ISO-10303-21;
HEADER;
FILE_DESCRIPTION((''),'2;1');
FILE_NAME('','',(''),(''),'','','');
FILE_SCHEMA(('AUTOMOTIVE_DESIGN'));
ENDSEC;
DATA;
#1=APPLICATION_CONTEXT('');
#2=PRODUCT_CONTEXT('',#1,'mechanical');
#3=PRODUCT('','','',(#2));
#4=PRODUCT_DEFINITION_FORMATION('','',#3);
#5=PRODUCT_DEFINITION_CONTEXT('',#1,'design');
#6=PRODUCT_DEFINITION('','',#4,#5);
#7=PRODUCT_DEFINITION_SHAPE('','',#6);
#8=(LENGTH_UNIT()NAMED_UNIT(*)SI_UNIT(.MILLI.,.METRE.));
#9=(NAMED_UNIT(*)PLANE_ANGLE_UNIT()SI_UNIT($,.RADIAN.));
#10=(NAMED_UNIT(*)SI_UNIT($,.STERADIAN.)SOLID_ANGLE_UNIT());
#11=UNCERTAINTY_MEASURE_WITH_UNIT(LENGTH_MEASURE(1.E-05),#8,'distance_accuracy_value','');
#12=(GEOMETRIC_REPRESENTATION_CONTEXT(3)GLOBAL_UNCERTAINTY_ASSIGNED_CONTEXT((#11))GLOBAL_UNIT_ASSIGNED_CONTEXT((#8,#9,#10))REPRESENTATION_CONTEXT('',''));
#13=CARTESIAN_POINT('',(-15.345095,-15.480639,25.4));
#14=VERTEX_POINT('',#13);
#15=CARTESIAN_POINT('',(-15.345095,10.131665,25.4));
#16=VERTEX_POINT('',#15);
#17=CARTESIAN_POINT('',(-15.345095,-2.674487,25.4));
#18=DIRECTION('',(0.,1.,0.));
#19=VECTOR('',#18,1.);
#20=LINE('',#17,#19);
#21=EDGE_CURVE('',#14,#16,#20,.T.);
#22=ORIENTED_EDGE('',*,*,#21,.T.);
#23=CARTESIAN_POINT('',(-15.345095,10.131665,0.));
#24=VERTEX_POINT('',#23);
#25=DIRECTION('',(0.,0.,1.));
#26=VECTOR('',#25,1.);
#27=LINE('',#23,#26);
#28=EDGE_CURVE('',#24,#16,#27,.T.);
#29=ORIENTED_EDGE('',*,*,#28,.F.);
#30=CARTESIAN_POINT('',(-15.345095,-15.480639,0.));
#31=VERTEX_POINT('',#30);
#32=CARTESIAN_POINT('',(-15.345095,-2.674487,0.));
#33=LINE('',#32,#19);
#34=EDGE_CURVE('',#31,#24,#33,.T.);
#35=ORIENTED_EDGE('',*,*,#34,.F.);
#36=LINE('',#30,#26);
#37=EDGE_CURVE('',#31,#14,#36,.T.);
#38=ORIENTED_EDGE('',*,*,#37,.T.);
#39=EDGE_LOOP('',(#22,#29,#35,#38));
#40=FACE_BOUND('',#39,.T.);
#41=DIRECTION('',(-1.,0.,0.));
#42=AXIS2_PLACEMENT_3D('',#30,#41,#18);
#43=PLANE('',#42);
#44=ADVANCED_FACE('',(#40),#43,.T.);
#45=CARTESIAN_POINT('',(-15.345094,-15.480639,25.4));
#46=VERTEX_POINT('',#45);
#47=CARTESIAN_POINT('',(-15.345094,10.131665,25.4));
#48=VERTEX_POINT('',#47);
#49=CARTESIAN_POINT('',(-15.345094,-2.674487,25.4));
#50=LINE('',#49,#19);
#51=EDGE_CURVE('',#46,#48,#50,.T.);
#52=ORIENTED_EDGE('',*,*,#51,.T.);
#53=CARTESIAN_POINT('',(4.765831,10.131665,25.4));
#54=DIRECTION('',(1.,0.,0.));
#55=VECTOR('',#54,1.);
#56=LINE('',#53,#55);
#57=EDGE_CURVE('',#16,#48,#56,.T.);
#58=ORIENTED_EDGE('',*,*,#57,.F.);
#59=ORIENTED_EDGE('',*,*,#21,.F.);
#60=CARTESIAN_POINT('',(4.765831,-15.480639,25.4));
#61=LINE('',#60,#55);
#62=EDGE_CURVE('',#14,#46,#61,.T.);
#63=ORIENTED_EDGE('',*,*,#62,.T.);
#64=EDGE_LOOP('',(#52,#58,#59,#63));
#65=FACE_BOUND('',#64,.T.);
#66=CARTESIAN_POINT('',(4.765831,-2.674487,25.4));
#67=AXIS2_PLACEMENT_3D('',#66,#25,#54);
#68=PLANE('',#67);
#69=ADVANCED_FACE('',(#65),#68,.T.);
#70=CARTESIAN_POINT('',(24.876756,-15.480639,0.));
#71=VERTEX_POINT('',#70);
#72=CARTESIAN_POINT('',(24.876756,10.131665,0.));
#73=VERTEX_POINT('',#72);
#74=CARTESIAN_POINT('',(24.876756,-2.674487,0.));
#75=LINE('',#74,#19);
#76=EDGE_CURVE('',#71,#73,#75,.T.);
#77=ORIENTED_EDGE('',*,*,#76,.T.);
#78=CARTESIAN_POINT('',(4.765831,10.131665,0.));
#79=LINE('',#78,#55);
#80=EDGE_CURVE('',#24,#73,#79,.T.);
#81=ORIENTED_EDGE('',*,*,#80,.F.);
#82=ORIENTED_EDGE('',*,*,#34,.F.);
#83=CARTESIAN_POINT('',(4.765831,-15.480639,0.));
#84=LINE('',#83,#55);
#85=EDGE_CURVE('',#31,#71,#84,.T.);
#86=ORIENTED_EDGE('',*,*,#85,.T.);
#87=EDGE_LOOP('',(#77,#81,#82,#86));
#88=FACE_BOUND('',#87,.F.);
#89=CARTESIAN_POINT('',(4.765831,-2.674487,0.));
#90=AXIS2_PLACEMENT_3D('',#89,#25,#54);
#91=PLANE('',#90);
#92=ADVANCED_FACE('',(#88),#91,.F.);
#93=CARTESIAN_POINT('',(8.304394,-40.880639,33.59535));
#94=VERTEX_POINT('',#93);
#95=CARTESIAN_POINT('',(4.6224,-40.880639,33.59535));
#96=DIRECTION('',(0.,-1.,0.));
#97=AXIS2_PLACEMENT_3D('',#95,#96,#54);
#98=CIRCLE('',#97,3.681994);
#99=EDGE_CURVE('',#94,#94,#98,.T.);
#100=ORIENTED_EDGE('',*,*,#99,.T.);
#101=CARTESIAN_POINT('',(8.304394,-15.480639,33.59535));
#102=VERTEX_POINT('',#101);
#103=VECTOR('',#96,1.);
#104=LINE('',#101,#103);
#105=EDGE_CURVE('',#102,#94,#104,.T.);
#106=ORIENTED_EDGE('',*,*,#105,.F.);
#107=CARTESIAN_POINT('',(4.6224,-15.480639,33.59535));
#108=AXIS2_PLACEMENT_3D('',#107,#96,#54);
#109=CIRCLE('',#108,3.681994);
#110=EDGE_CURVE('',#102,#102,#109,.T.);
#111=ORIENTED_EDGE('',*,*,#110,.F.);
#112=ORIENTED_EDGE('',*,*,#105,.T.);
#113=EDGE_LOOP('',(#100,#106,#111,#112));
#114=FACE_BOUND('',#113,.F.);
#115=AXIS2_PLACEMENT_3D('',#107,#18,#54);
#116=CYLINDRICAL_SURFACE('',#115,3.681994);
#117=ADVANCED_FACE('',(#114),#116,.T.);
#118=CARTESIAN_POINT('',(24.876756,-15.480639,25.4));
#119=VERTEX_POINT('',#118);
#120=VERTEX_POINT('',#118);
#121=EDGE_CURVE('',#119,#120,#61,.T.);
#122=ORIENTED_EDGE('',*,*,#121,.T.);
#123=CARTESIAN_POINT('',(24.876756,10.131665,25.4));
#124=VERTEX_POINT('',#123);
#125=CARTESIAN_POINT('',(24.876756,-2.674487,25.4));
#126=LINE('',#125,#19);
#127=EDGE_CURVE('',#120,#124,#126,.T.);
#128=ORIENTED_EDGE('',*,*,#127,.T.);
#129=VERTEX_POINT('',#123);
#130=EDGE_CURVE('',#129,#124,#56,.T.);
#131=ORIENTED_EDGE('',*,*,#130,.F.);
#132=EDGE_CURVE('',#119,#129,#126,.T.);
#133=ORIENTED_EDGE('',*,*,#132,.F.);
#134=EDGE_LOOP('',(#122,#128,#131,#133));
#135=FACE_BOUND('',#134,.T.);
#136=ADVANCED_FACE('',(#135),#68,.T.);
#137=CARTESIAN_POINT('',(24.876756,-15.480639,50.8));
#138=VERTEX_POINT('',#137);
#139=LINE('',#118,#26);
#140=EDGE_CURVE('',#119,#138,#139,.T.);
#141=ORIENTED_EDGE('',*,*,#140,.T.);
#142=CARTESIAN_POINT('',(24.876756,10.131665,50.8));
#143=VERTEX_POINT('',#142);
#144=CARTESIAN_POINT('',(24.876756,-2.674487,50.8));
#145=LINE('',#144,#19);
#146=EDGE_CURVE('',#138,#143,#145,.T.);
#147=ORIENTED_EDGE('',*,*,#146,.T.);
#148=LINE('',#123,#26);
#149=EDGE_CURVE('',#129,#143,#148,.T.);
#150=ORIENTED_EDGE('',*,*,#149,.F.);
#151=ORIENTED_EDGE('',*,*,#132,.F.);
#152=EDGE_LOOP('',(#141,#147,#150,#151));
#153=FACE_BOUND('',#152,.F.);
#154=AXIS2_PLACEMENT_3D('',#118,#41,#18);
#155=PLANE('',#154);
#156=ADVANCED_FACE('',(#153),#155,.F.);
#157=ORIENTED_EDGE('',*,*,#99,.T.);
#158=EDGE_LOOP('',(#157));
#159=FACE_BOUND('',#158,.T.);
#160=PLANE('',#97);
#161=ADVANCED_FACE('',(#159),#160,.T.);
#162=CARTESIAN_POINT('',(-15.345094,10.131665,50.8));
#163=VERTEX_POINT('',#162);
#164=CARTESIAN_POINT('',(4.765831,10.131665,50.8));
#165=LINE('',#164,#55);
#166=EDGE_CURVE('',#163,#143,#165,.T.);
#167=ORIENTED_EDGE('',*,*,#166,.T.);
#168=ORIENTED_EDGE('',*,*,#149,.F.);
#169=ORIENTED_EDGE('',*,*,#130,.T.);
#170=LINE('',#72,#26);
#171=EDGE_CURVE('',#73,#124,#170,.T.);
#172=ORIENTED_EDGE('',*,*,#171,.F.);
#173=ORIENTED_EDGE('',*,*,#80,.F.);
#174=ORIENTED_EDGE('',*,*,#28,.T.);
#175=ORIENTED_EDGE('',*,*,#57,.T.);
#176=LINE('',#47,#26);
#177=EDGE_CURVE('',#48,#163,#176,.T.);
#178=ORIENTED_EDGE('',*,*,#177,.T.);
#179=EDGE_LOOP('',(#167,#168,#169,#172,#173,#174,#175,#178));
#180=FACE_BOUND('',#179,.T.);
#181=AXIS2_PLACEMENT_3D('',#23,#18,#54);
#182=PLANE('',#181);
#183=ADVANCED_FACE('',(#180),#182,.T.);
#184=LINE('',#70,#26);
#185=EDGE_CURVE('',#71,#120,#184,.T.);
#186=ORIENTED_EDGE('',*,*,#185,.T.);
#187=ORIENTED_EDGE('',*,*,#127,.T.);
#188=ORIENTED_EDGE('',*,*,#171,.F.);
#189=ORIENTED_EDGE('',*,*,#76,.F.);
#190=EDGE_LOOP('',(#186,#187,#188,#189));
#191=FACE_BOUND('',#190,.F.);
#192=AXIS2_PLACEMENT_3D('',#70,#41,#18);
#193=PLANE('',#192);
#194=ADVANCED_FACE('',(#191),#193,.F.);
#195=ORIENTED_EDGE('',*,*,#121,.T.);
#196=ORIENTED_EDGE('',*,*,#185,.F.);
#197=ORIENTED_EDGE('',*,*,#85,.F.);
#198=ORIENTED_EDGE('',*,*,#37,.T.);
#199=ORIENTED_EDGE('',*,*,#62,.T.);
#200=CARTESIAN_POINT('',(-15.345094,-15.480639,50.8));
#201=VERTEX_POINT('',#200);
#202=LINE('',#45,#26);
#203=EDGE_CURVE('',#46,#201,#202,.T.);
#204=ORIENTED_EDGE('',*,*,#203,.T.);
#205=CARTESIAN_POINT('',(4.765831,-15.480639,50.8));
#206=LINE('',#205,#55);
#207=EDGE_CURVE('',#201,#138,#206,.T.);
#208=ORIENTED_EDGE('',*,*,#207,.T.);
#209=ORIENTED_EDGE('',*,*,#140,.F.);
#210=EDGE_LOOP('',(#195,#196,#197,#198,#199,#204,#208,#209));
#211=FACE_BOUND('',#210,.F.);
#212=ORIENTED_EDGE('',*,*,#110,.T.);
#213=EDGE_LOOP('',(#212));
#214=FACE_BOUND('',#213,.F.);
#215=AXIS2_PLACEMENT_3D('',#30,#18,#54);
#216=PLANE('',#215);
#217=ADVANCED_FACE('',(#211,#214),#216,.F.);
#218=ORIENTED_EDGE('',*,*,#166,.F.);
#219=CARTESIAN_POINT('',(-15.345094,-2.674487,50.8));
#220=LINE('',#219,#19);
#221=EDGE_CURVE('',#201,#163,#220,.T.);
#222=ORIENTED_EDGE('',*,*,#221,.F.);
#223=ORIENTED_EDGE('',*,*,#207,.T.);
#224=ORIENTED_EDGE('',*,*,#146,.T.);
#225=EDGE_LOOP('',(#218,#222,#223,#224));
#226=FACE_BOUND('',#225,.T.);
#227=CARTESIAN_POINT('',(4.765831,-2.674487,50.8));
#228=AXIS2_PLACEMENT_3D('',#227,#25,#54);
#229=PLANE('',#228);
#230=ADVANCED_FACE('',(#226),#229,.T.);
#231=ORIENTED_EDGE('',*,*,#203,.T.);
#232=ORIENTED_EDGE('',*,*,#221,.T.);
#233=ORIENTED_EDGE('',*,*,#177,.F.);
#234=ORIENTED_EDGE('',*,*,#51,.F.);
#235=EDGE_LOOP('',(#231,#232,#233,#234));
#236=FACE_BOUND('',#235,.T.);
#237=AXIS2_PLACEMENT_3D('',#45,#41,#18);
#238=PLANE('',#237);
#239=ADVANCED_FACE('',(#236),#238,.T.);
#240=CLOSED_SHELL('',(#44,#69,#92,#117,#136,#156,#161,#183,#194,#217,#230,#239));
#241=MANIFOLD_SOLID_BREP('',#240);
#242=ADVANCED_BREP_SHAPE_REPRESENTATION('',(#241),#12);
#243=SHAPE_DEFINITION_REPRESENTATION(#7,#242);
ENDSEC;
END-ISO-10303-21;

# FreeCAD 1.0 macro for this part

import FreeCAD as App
import Part
import Sketcher

V = App.Vector
Q = App.Units.Quantity


def add_polygon(sketch, points):
    """Adds a closed chain of lines whose ends are joined by coincident constraints."""
    first, n = sketch.GeometryCount, len(points)
    for a, b in zip(points, points[1:] + points[:1]):
        sketch.addGeometry(Part.LineSegment(App.Vector(*a, 0), App.Vector(*b, 0)), False)
    for i in range(n):
        sketch.addConstraint(Sketcher.Constraint("Coincident", first + i, 2, first + (i + 1) % n, 1))

doc = App.newDocument("Part")
body = doc.addObject("PartDesign::Body", "Body")

# Sketch on XY plane
sketch1 = doc.addObject("Sketcher::SketchObject", "Sketch")
body.addObject(sketch1)
sketch1.AttachmentSupport = (doc.XY_Plane, [""])
sketch1.MapMode = "FlatFace"
add_polygon(sketch1, [(-15, 10), (-15, -15), (25, -15), (25, 10)])  # lines 0-3
sketch1.addConstraint([
    Sketcher.Constraint("Vertical", 0),
    Sketcher.Constraint("Horizontal", 1),
    Sketcher.Constraint("Vertical", 2),
    Sketcher.Constraint("Horizontal", 3),
    Sketcher.Constraint("DistanceX", -1, 1, 1, 2, Q("0.9793999 in")),
    Sketcher.Constraint("DistanceX", 1, 1, 1, 2, 40.221851),
    Sketcher.Constraint("DistanceY", 0, 2, 0, 1, 25.612304),
    Sketcher.Constraint("DistanceY", 0, 2, -1, 1, 15.480639),
])
pad1 = doc.addObject("PartDesign::Pad", "Pad")
body.addObject(pad1)
pad1.Profile = sketch1
pad1.Length = Q("1 in")

# Sketch on XY plane
sketch2 = doc.addObject("Sketcher::SketchObject", "Sketch001")
body.addObject(sketch2)
sketch2.AttachmentSupport = (doc.XY_Plane, [""])
sketch2.MapMode = "FlatFace"
sketch2.AttachmentOffset = App.Placement(V(0, 0, 1 * 25.4), App.Rotation())
add_polygon(sketch2, [(-15, 10), (-15, -15), (25, -15), (25, 10)])  # lines 0-3
sketch2.addConstraint([
    Sketcher.Constraint("Vertical", 0),
    Sketcher.Constraint("Horizontal", 1),
    Sketcher.Constraint("Vertical", 2),
    Sketcher.Constraint("Horizontal", 3),
    Sketcher.Constraint("DistanceX", -1, 1, 1, 2, Q("0.9793998 in")),
    Sketcher.Constraint("DistanceX", 1, 1, 1, 2, 40.22185),
    Sketcher.Constraint("DistanceY", 0, 2, 0, 1, 25.612304),
    Sketcher.Constraint("DistanceY", 0, 2, -1, 1, 15.480639),
])
pad2 = doc.addObject("PartDesign::Pad", "Pad001")
body.addObject(pad2)
pad2.Profile = sketch2
pad2.Length = Q("1 in")

# Sketch on XZ plane
sketch3 = doc.addObject("Sketcher::SketchObject", "Sketch002")
body.addObject(sketch3)
sketch3.AttachmentSupport = (doc.XZ_Plane, [""])
sketch3.MapMode = "FlatFace"
sketch3.AttachmentOffset = App.Placement(V(0, 0, 15.480639), App.Rotation())
sketch3.addGeometry(Part.Circle(V(4.6, 33.6, 0), V(0, 0, 1), 3.7), False)
sketch3.addConstraint([
    Sketcher.Constraint("Diameter", 0, 7.363988),
    Sketcher.Constraint("DistanceX", -1, 1, 0, 3, 4.6224),
    Sketcher.Constraint("DistanceY", -1, 1, 0, 3, 33.59535),
])
pad3 = doc.addObject("PartDesign::Pad", "Pad002")
body.addObject(pad3)
pad3.Profile = sketch3
pad3.Length = Q("1 in")

doc.recompute()
